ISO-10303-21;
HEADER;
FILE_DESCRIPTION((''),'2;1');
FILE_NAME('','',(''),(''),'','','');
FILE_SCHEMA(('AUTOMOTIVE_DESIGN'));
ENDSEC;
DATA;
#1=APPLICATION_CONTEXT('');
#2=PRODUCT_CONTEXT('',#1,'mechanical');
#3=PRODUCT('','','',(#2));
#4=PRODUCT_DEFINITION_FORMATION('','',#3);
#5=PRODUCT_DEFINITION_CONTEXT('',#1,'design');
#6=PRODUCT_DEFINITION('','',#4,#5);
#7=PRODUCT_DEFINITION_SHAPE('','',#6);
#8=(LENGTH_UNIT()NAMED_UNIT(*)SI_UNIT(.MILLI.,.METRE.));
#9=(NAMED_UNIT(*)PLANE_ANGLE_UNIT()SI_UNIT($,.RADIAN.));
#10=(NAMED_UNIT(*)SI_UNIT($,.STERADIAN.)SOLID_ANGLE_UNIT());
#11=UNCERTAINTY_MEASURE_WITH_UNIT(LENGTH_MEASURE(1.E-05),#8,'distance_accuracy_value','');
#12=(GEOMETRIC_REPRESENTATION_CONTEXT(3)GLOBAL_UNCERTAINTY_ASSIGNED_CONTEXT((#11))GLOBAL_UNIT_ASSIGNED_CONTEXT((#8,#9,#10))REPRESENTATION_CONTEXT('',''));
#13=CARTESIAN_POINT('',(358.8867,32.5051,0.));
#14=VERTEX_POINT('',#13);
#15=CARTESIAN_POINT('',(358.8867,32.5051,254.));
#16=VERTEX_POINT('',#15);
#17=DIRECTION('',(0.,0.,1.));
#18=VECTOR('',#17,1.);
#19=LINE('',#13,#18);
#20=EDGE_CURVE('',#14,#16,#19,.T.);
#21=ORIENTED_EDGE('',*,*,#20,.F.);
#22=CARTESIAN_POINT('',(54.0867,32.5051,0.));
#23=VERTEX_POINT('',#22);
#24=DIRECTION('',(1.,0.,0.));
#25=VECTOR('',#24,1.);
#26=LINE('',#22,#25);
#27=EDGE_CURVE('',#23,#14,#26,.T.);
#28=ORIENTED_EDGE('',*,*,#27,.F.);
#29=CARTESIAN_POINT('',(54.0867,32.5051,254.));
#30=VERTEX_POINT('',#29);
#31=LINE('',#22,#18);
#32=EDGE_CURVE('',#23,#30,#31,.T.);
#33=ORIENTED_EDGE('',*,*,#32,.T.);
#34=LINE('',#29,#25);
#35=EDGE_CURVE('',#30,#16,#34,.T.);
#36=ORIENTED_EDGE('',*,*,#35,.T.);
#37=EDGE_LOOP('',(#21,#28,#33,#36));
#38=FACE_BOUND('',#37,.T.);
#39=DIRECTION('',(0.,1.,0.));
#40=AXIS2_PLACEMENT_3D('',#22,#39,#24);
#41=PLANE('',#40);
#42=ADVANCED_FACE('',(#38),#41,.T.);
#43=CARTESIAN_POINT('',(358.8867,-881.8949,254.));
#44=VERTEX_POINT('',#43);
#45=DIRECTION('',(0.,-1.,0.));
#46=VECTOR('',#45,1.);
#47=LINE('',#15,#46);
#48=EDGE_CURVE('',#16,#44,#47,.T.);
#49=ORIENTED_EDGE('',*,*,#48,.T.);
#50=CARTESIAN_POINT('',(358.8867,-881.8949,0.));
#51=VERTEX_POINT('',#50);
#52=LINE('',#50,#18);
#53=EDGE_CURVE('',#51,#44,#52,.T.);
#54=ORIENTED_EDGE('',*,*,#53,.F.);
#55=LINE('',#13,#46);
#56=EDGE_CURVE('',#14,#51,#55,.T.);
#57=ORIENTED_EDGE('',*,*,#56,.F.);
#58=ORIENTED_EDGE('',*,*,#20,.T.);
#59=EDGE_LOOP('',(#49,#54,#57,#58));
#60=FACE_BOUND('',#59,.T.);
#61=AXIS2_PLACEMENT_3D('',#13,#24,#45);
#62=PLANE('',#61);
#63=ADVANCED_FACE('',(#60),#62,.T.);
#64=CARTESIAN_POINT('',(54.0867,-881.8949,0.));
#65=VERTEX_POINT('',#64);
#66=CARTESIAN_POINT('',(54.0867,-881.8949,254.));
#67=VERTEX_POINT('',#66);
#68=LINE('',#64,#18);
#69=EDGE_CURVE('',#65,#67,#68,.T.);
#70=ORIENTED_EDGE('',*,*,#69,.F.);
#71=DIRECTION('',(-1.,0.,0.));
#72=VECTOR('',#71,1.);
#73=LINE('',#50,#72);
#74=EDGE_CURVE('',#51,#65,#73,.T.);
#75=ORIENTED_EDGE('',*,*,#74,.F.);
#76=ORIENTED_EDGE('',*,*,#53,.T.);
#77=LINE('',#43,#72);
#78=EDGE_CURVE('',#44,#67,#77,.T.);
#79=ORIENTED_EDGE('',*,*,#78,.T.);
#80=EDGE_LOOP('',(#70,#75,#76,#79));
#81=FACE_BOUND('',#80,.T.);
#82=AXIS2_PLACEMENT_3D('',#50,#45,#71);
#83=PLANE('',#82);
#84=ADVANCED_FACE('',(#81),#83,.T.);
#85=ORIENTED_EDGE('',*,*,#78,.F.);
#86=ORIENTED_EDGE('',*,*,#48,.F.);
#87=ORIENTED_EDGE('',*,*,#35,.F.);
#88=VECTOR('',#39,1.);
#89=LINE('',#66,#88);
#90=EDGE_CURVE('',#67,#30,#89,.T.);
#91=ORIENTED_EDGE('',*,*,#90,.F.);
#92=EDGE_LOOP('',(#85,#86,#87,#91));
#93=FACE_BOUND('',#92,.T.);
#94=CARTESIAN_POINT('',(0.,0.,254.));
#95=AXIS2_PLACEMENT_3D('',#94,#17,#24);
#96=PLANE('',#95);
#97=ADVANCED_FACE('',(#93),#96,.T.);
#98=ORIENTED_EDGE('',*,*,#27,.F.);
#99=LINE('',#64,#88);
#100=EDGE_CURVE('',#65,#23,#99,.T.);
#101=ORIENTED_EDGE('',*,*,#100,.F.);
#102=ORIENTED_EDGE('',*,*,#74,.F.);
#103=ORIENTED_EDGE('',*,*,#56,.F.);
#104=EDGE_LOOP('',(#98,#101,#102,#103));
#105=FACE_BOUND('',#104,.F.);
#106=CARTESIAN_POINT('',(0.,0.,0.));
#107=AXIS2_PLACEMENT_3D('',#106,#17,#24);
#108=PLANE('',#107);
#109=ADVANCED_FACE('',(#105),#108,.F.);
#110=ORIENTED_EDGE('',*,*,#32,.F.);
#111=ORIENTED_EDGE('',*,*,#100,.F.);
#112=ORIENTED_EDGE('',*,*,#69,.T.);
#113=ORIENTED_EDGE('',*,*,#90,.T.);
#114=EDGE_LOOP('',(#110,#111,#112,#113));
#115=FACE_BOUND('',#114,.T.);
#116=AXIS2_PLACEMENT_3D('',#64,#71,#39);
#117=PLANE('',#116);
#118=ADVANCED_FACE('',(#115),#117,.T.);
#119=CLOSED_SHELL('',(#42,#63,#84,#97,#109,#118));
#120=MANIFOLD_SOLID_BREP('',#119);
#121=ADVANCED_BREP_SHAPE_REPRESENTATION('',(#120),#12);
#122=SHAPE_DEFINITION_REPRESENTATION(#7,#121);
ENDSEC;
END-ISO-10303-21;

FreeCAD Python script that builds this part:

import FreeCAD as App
import Part
import Sketcher

V = App.Vector
Q = App.Units.Quantity


def add_polygon(sketch, points):
    """Adds a closed chain of lines whose ends are joined by coincident constraints."""
    first, n = sketch.GeometryCount, len(points)
    for a, b in zip(points, points[1:] + points[:1]):
        sketch.addGeometry(Part.LineSegment(App.Vector(*a, 0), App.Vector(*b, 0)), False)
    for i in range(n):
        sketch.addConstraint(Sketcher.Constraint("Coincident", first + i, 2, first + (i + 1) % n, 1))

doc = App.newDocument("Part")
body = doc.addObject("PartDesign::Body", "Body")

sketch1 = body.newObject("Sketcher::SketchObject", "Sketch")
sketch1.AttachmentSupport = (doc.getObject("XY_Plane"), [""])
sketch1.MapMode = "FlatFace"
add_polygon(sketch1, [(358.8867, 32.5051), (54.0867, 32.5051), (54.0867, -881.8949), (358.8867, -881.8949)])
sketch1.addConstraint(Sketcher.Constraint("Horizontal", 0))
sketch1.addConstraint(Sketcher.Constraint("Vertical", 1))
sketch1.addConstraint(Sketcher.Constraint("Horizontal", 2))
sketch1.addConstraint(Sketcher.Constraint("Vertical", 3))
sketch1.addConstraint(Sketcher.Constraint("DistanceX", 0, 2, 0, 1, Q("12 in")))
sketch1.addConstraint(Sketcher.Constraint("DistanceY", 1, 2, 1, 1, Q("36 in")))
sketch1.addConstraint(Sketcher.Constraint("DistanceX", -1, 1, 0, 2, Q("2.1294 in")))
sketch1.addConstraint(Sketcher.Constraint("DistanceY", -1, 1, 0, 2, 32.505))
pad1 = body.newObject("PartDesign::Pad", "Pad")
pad1.Profile = sketch1
pad1.Length = Q("10 in")

doc.recompute()
